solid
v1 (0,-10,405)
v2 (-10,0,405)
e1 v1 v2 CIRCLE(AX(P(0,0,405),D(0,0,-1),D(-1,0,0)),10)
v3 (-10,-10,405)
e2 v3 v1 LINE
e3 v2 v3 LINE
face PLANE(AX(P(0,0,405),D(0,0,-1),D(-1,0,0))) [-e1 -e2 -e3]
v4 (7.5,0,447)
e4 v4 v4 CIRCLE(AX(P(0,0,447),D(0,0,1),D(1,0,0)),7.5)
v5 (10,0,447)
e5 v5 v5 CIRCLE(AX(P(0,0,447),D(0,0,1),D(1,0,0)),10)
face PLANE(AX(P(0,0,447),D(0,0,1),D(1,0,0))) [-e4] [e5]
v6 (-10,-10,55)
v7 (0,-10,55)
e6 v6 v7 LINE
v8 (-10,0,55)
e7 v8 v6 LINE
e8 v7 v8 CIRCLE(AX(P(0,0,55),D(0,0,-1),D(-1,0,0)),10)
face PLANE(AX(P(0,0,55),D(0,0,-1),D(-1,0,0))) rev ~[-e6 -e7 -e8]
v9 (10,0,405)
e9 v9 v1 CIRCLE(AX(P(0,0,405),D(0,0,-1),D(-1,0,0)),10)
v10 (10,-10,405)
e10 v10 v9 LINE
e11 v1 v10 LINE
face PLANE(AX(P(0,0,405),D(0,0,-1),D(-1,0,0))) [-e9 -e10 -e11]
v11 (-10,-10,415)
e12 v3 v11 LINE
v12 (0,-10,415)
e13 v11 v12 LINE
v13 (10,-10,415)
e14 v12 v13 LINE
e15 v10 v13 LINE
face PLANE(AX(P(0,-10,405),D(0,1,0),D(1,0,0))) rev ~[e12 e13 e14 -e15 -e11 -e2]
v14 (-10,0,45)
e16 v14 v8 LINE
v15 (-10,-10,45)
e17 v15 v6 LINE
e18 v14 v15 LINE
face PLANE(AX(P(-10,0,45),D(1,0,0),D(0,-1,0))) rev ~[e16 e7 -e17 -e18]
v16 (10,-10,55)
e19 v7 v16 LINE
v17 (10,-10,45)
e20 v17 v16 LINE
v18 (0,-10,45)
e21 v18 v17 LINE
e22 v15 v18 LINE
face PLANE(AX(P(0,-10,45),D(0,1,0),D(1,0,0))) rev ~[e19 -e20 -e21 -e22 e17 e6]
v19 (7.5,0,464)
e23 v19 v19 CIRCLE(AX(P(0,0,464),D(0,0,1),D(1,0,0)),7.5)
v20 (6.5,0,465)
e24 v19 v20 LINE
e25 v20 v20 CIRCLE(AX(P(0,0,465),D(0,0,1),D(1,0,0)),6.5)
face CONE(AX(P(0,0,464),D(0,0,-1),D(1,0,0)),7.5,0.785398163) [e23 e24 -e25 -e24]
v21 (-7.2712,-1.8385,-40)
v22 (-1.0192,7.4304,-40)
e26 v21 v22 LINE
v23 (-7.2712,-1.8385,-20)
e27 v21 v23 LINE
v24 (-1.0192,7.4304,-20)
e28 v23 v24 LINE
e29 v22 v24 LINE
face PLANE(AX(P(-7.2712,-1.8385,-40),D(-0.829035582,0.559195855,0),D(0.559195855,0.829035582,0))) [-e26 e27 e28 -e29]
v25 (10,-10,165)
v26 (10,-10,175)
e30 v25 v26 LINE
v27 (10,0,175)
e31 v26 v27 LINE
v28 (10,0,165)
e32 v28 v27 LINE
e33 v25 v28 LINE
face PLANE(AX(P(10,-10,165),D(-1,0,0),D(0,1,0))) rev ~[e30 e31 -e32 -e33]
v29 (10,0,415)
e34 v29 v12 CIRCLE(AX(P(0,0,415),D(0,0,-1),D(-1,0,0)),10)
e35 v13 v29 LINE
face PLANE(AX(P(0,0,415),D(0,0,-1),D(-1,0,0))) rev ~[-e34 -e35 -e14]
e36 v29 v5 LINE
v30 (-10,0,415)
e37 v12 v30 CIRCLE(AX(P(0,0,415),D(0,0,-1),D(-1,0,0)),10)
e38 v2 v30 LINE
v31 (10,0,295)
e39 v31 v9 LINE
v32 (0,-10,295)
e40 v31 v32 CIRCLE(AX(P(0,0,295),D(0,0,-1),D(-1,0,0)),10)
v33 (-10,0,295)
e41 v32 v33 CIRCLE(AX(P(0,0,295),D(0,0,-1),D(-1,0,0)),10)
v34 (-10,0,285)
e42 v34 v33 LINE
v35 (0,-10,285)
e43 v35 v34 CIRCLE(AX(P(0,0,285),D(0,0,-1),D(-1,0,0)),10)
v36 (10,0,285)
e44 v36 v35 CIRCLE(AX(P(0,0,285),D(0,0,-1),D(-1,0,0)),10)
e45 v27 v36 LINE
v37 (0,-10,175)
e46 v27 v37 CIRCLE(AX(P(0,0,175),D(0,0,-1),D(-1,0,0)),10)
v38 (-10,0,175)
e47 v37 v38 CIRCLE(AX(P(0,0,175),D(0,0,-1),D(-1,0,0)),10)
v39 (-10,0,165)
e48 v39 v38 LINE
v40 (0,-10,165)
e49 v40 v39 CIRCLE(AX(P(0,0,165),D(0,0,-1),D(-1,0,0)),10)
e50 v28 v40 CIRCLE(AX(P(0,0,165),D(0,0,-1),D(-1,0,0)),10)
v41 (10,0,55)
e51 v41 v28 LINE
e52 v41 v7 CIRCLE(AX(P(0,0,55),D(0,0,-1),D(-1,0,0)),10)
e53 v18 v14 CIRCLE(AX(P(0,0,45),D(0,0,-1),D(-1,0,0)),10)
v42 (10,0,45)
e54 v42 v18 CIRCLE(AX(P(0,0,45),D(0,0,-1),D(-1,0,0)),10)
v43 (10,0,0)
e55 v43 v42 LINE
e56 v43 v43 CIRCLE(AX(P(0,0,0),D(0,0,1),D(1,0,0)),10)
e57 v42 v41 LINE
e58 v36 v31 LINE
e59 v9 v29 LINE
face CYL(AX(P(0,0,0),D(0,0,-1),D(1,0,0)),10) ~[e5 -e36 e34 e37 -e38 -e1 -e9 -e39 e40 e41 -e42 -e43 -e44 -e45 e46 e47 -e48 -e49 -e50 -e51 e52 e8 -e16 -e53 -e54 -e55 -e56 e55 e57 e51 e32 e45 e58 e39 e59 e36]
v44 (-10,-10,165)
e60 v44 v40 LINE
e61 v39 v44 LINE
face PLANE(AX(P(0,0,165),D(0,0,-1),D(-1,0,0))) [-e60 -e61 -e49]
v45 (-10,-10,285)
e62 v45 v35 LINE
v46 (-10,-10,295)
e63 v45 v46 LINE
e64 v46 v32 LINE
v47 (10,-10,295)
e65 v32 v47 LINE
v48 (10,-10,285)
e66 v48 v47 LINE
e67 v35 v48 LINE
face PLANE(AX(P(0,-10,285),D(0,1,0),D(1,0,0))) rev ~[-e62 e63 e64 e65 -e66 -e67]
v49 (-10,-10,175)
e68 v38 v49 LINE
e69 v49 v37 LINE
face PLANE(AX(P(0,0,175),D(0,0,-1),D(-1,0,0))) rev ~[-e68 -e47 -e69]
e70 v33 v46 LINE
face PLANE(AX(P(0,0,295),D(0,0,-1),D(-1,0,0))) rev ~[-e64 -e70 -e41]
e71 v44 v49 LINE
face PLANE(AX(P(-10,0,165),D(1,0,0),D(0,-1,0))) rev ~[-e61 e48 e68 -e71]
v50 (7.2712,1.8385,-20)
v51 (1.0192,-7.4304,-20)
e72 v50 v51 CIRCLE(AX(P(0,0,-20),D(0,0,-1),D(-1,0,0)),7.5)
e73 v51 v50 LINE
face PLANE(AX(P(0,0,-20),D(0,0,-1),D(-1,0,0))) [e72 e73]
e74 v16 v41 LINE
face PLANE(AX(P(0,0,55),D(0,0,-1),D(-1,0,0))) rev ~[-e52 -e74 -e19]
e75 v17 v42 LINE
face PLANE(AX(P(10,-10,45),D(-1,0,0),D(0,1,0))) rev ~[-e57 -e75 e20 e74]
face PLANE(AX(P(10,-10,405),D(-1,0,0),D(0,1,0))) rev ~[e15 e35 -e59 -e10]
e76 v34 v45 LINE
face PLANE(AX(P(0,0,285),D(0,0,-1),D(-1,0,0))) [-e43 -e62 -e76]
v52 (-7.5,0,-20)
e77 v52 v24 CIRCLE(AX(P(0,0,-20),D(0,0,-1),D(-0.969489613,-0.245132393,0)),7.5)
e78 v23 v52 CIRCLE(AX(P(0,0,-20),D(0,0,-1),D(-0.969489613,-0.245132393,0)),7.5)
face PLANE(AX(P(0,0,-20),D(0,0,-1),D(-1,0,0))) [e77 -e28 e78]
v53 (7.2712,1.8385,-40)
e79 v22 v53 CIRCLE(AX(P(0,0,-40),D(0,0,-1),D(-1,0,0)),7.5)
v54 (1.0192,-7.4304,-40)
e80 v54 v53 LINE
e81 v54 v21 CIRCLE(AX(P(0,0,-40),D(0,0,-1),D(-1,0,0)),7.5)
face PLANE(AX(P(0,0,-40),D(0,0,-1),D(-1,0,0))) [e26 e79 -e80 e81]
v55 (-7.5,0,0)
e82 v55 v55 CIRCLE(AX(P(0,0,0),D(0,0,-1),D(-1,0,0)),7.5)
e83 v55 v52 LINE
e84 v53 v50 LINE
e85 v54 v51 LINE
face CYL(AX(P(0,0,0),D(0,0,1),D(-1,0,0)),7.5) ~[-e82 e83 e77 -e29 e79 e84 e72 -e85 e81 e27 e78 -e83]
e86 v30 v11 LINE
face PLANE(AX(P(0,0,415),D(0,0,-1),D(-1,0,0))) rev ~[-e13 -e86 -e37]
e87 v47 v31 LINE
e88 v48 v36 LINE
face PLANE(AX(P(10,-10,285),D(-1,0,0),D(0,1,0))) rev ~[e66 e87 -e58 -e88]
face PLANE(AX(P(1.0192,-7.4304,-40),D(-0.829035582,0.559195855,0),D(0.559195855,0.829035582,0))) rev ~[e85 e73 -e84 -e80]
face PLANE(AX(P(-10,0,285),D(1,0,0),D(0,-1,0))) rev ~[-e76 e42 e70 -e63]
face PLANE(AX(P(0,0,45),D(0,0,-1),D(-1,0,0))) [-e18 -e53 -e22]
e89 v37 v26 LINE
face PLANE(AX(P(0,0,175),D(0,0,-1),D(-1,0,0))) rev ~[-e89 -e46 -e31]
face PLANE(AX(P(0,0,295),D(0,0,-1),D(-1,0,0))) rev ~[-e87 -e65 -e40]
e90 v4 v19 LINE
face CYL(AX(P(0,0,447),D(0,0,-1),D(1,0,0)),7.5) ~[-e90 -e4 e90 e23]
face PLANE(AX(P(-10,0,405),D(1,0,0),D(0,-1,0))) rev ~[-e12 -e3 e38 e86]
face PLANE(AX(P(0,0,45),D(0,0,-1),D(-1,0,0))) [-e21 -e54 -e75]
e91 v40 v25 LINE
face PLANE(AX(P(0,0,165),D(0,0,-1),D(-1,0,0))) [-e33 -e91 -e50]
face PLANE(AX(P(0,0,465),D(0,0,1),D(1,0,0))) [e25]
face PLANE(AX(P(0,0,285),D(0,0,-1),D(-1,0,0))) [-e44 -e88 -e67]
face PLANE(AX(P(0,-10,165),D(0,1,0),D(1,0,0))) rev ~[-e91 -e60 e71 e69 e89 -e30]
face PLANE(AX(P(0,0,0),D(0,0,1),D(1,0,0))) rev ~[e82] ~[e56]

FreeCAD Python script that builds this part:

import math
import FreeCAD as App
import Part
import Sketcher
from FreeCAD import Vector
Q = App.Units.Quantity


def edges_at(feature, points):
    """Names of the edges that pass closest to the given points."""
    edges = feature.Shape.Edges
    near = lambda p: min(range(len(edges)), key=lambda i: edges[i].distToShape(Part.Vertex(*p))[0])
    return sorted({f"Edge{near(p) + 1}" for p in points})

doc = App.newDocument("Part")
params = doc.addObject("Spreadsheet::Sheet", "Params")
for row, (alias, value) in enumerate([
    ("sketch1_diameter", "20 mm"),
    ("pad1_length", "447 mm"),
    ("sketch2_diameter", "15 mm"),
    ("pad2_length", "18 mm"),
    ("chamfer_size", "1 mm"),
    ("sketch3_diameter", "15 mm"),
    ("pad3_length", "40 mm"),
    ("sketch4_radius", "10 mm"),
    ("pad4_length", "10 mm"),
    ("linearpattern_pitch", "120 mm"),
    ("sketch5_radius", "7.5 mm"),
    ("pocket1_length", "20 mm"),
], start=1):
    params.set(f"A{row}", alias)
    params.set(f"B{row}", "=" + value)
    params.setAlias(f"B{row}", alias)

body = doc.addObject("PartDesign::Body", "Body")

# Sketch on XY plane
sketch1 = body.newObject("Sketcher::SketchObject", "Sketch")
sketch1.AttachmentSupport = (doc.getObject("XY_Plane"), [""])
sketch1.MapMode = "FlatFace"
sketch1.addGeometry(Part.Circle(Vector(0, 0, 0), Vector(0, 0, 1), 10), False)
sketch1.addConstraint(Sketcher.Constraint("Coincident", 0, 3, -1, 1))
sketch1.addConstraint(Sketcher.Constraint("Diameter", 0, 20.0))
sketch1.setExpression("Constraints[1]", "Params.sketch1_diameter")
pad1 = body.newObject("PartDesign::Pad", "Pad")
pad1.Profile = sketch1
pad1.setExpression("Length", "Params.pad1_length")

# Sketch on XY plane
sketch2 = body.newObject("Sketcher::SketchObject", "Sketch001")
sketch2.AttachmentSupport = (doc.getObject("XY_Plane"), [""])
sketch2.MapMode = "FlatFace"
sketch2.AttachmentOffset = App.Placement(Vector(0, 0, 447), App.Rotation())
sketch2.addGeometry(Part.Circle(Vector(0, 0, 0), Vector(0, 0, 1), 8), False)
sketch2.addConstraint(Sketcher.Constraint("Coincident", 0, 3, -1, 1))
sketch2.addConstraint(Sketcher.Constraint("Diameter", 0, 15.0))
sketch2.setExpression("Constraints[1]", "Params.sketch2_diameter")
pad2 = body.newObject("PartDesign::Pad", "Pad001")
pad2.Profile = sketch2
pad2.setExpression("Length", "Params.pad2_length")
doc.recompute()

chamfer = body.newObject("PartDesign::Chamfer", "Chamfer")
chamfer.Base = (pad2, edges_at(pad2, [(-7.5, 0, 465)]))
chamfer.setExpression("Size", "Params.chamfer_size")

# Sketch on XY plane
sketch3 = body.newObject("Sketcher::SketchObject", "Sketch002")
sketch3.AttachmentSupport = (doc.getObject("XY_Plane"), [""])
sketch3.MapMode = "FlatFace"
sketch3.addGeometry(Part.Circle(Vector(0, 0, 0), Vector(0, 0, 1), 8), False)
sketch3.addConstraint(Sketcher.Constraint("Coincident", 0, 3, -1, 1))
sketch3.addConstraint(Sketcher.Constraint("Diameter", 0, 15.0))
sketch3.setExpression("Constraints[1]", "Params.sketch3_diameter")
pad3 = body.newObject("PartDesign::Pad", "Pad002")
pad3.Profile = sketch3
pad3.setExpression("Length", "Params.pad3_length")
pad3.Reversed = True

# Sketch on XY plane
sketch4 = body.newObject("Sketcher::SketchObject", "Sketch003")
sketch4.AttachmentSupport = (doc.getObject("XY_Plane"), [""])
sketch4.MapMode = "FlatFace"
sketch4.AttachmentOffset = App.Placement(Vector(0, 0, 45), App.Rotation())
sketch4.addGeometry(Part.LineSegment(Vector(-10, -10, 0), Vector(-10, 0, 0)), False)
sketch4.addGeometry(Part.ArcOfCircle(Part.Circle(Vector(0, 0, 0), Vector(0, 0, 1), 10), math.radians(180), math.radians(270)), False)
sketch4.addGeometry(Part.LineSegment(Vector(0, -10, 0), Vector(-10, -10, 0)), False)
sketch4.addGeometry(Part.LineSegment(Vector(10, -10, 0), Vector(0, -10, 0)), False)
sketch4.addGeometry(Part.ArcOfCircle(Part.Circle(Vector(0, 0, 0), Vector(0, 0, 1), 10), math.radians(-90), math.radians(0)), False)
sketch4.addGeometry(Part.LineSegment(Vector(10, 0, 0), Vector(10, -10, 0)), False)
sketch4.addConstraint(Sketcher.Constraint("Tangent", 0, 2, 1, 1))
sketch4.addConstraint(Sketcher.Constraint("Tangent", 1, 2, 2, 1))
sketch4.addConstraint(Sketcher.Constraint("Coincident", 2, 2, 0, 1))
sketch4.addConstraint(Sketcher.Constraint("Tangent", 3, 2, 4, 1))
sketch4.addConstraint(Sketcher.Constraint("Tangent", 4, 2, 5, 1))
sketch4.addConstraint(Sketcher.Constraint("Coincident", 5, 2, 3, 1))
sketch4.addConstraint(Sketcher.Constraint("Vertical", 0))
sketch4.addConstraint(Sketcher.Constraint("Horizontal", 2))
sketch4.addConstraint(Sketcher.Constraint("Horizontal", 3))
sketch4.addConstraint(Sketcher.Constraint("Vertical", 5))
sketch4.addConstraint(Sketcher.Constraint("Coincident", 1, 3, -1, 1))
sketch4.addConstraint(Sketcher.Constraint("Coincident", 4, 3, -1, 1))
sketch4.addConstraint(Sketcher.Constraint("Equal", 1, 4))
sketch4.addConstraint(Sketcher.Constraint("Radius", 1, 10.0))
sketch4.setExpression("Constraints[13]", "Params.sketch4_radius")
pad4 = body.newObject("PartDesign::Pad", "Pad003")
pad4.Profile = sketch4
pad4.setExpression("Length", "Params.pad4_length")
doc.recompute()

linearpattern = body.newObject("PartDesign::LinearPattern", "LinearPattern")
linearpattern.Originals = [pad4]
linearpattern.Direction = (doc.getObject("Z_Axis"), [""])
linearpattern.Mode = "offset"
linearpattern.setExpression("Offset", "Params.linearpattern_pitch")
linearpattern.Occurrences = 4
body.Tip = linearpattern

# Sketch on XY plane
sketch5 = body.newObject("Sketcher::SketchObject", "Sketch004")
sketch5.AttachmentSupport = (doc.getObject("XY_Plane"), [""])
sketch5.MapMode = "FlatFace"
sketch5.AttachmentOffset = App.Placement(Vector(0, 0, -40), App.Rotation())
sketch5.addGeometry(Part.ArcOfCircle(Part.Circle(Vector(0, 0, 0), Vector(0, 0, 1), 8), math.radians(98), math.radians(194)), False)
sketch5.addGeometry(Part.LineSegment(Vector(-7, -2, 0), Vector(-1, 7, 0)), False)
sketch5.addGeometry(Part.LineSegment(Vector(1, -7, 0), Vector(7, 2, 0)), False)
sketch5.addGeometry(Part.ArcOfCircle(Part.Circle(Vector(0, 0, 0), Vector(0, 0, 1), 8), math.radians(-82), math.radians(14)), False)
sketch5.addConstraint(Sketcher.Constraint("Coincident", 0, 1, 1, 2))
sketch5.addConstraint(Sketcher.Constraint("Coincident", 1, 1, 0, 2))
sketch5.addConstraint(Sketcher.Constraint("Coincident", 2, 1, 3, 1))
sketch5.addConstraint(Sketcher.Constraint("Coincident", 3, 2, 2, 2))
sketch5.addConstraint(Sketcher.Constraint("Coincident", 0, 3, -1, 1))
sketch5.addConstraint(Sketcher.Constraint("Coincident", 3, 3, -1, 1))
sketch5.addConstraint(Sketcher.Constraint("Equal", 0, 3))
sketch5.addConstraint(Sketcher.Constraint("Parallel", 1, 2))
sketch5.addConstraint(Sketcher.Constraint("Equal", 1, 2))
sketch5.addConstraint(Sketcher.Constraint("Radius", 0, 7.5))
sketch5.addConstraint(Sketcher.Constraint("Angle", 1, Q("55.9998 deg")))
sketch5.addConstraint(Sketcher.Constraint("DistanceX", 1, 1, 0, 1, 6.252))
sketch5.setExpression("Constraints[9]", "Params.sketch5_radius")
pocket1 = body.newObject("PartDesign::Pocket", "Pocket")
pocket1.Profile = sketch5
pocket1.setExpression("Length", "Params.pocket1_length")
pocket1.Reversed = True

doc.recompute()
